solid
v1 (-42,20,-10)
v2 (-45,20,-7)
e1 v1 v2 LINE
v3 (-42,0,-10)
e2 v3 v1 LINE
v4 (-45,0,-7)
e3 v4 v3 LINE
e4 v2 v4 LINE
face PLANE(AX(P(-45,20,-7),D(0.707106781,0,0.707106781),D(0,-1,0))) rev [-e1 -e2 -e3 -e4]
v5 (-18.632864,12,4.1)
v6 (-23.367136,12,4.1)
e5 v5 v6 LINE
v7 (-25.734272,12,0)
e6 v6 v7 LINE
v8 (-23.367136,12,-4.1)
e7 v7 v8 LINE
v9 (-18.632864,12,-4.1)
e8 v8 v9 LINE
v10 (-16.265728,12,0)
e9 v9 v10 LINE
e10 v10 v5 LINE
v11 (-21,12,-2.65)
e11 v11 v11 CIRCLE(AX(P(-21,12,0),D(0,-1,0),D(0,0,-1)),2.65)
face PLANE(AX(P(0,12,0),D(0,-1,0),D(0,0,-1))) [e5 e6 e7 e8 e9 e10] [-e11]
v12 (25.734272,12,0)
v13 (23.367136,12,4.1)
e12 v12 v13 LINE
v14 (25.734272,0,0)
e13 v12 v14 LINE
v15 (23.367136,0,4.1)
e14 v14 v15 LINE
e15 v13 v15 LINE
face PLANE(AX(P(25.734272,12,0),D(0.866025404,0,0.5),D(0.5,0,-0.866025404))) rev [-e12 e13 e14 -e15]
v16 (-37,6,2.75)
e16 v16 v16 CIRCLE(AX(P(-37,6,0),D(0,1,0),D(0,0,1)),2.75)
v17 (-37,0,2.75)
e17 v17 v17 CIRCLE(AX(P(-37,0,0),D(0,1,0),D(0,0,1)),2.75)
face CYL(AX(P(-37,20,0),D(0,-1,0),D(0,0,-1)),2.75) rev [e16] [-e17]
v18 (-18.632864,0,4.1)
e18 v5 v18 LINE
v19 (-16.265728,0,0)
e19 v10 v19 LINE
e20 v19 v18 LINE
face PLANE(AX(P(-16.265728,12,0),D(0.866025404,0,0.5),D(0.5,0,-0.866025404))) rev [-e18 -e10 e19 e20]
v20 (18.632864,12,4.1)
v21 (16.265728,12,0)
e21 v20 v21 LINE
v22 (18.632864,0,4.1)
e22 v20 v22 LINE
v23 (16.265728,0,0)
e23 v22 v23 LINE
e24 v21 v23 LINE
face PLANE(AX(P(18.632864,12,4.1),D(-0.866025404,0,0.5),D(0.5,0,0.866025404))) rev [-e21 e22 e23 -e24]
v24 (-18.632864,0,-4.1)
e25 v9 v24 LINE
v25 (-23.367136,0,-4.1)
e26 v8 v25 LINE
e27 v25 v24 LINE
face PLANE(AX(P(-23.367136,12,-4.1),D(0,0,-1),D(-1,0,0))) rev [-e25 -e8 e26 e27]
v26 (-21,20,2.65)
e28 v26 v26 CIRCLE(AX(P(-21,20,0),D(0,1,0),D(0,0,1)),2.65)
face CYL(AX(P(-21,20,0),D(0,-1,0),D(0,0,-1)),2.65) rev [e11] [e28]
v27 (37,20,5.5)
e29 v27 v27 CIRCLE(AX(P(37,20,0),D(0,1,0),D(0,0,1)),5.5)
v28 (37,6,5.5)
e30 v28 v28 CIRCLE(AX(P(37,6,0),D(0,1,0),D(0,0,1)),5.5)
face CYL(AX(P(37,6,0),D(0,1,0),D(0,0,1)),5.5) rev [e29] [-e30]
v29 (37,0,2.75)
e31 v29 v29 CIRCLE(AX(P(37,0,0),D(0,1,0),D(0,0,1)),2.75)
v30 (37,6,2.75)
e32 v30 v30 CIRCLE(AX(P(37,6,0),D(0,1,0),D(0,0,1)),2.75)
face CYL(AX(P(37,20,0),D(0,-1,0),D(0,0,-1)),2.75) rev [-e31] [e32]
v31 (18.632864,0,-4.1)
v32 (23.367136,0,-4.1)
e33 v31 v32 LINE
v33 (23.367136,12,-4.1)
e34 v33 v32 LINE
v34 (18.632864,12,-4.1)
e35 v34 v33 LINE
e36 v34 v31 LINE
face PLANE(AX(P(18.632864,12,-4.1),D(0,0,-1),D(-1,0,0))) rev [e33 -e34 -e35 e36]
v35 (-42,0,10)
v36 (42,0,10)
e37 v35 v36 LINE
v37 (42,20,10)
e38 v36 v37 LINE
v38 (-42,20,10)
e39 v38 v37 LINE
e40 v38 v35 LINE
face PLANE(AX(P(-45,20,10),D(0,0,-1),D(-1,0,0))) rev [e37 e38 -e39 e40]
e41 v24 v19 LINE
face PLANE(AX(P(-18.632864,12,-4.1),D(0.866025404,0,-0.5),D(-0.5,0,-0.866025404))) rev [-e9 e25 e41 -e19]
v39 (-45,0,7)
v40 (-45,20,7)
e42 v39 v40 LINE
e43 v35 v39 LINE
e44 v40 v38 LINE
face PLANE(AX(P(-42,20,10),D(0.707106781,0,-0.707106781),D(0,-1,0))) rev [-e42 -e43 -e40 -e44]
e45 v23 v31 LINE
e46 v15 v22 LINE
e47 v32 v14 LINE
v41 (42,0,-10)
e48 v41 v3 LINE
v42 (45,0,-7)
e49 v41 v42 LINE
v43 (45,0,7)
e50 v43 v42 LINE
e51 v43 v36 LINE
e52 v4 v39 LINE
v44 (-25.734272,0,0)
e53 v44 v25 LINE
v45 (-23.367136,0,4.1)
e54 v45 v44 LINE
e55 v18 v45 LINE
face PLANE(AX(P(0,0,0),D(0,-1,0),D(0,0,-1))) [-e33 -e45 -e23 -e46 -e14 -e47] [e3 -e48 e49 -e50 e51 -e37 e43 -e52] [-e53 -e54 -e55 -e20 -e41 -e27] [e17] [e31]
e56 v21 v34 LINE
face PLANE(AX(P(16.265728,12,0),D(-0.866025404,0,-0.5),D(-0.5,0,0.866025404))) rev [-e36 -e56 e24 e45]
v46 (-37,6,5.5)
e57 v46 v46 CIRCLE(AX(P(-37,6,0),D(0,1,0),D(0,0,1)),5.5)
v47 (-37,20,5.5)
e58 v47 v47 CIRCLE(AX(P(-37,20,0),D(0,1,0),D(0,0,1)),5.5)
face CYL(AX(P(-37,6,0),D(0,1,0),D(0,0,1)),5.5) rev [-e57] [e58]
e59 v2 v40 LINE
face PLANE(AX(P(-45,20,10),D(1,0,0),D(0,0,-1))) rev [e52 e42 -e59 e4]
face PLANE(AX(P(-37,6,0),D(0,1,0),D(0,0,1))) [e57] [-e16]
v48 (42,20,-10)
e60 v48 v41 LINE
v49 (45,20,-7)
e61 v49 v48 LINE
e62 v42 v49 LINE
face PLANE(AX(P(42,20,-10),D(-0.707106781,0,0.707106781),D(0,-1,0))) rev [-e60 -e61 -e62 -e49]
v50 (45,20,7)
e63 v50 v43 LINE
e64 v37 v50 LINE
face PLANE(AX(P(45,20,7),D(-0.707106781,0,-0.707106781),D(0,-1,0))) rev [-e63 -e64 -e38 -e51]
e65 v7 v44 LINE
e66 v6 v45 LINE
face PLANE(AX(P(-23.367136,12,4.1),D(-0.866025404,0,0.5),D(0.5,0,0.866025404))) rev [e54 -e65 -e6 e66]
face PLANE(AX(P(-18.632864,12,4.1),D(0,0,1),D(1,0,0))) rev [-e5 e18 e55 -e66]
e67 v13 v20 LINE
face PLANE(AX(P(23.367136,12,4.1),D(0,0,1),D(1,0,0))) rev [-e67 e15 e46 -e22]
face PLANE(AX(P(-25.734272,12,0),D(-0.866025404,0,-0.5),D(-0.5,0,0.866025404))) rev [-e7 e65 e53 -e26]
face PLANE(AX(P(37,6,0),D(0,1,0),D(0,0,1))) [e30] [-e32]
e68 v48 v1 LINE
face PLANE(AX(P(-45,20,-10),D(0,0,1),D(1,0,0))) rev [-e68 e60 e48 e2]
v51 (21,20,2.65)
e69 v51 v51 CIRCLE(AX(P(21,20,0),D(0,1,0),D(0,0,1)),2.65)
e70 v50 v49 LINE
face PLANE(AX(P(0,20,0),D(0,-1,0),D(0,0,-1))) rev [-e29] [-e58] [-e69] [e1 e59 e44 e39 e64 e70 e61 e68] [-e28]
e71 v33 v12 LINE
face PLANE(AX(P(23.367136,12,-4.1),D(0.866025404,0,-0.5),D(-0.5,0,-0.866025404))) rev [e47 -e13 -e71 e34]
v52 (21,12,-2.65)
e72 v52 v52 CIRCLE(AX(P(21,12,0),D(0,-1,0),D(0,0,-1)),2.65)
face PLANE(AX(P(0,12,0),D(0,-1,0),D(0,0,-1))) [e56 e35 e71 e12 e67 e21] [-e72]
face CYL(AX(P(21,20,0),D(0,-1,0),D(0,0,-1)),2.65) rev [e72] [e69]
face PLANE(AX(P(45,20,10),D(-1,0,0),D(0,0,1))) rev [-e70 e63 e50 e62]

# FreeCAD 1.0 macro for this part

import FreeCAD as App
import Part
import Sketcher
Q = App.Units.Quantity


def edges_at(feature, points):
    """Names of the edges that pass closest to the given points."""
    edges = feature.Shape.Edges
    near = lambda p: min(range(len(edges)), key=lambda i: edges[i].distToShape(Part.Vertex(*p))[0])
    return sorted({f"Edge{near(p) + 1}" for p in points})


def add_polygon(sketch, points):
    """Adds a closed chain of lines whose ends are joined by coincident constraints."""
    first, n = sketch.GeometryCount, len(points)
    for a, b in zip(points, points[1:] + points[:1]):
        sketch.addGeometry(Part.LineSegment(App.Vector(*a, 0), App.Vector(*b, 0)), False)
    for i in range(n):
        sketch.addConstraint(Sketcher.Constraint("Coincident", first + i, 2, first + (i + 1) % n, 1))

doc = App.newDocument("Part")
body = doc.addObject("PartDesign::Body", "Body")

# Sketch on XZ plane
sketch1 = body.newObject("Sketcher::SketchObject", "Sketch")
sketch1.AttachmentSupport = (doc.getObject("XZ_Plane"), [""])
sketch1.MapMode = "FlatFace"
add_polygon(sketch1, [(-45, -10), (-45, 10), (45, 10), (45, -10)])  # lines 0-3
sketch1.addGeometry(Part.Circle(App.Vector(-37, 0, 0), App.Vector(0, 0, 1), 2.8), False)  # 4
sketch1.addGeometry(Part.Circle(App.Vector(-21, 0, 0), App.Vector(0, 0, 1), 2.6), False)  # 5
sketch1.addGeometry(Part.Circle(App.Vector(21, 0, 0), App.Vector(0, 0, 1), 2.6), False)  # 6
sketch1.addGeometry(Part.Circle(App.Vector(37, 0, 0), App.Vector(0, 0, 1), 2.8), False)  # 7
sketch1.addConstraint([
    Sketcher.Constraint("Vertical", 0),
    Sketcher.Constraint("Horizontal", 1),
    Sketcher.Constraint("Vertical", 2),
    Sketcher.Constraint("Horizontal", 3),
    Sketcher.Constraint("Equal", 5, 6),
    Sketcher.Constraint("Equal", 4, 7),
    Sketcher.Constraint("Symmetric", 5, 3, 6, 3, -1, 1),
    Sketcher.Constraint("Symmetric", 4, 3, 7, 3, -1, 1),
    Sketcher.Constraint("Symmetric", 0, 2, 2, 2, -1, 1),
    Sketcher.Constraint("PointOnObject", 4, 3, -1),
    Sketcher.Constraint("PointOnObject", 5, 3, -1),
    Sketcher.Constraint("Diameter", 4, 5.5),
    Sketcher.Constraint("Diameter", 5, 5.3),
    Sketcher.Constraint("DistanceX", 1, 1, 1, 2, 90.0),
    Sketcher.Constraint("DistanceY", 0, 1, 0, 2, 20.0),
    Sketcher.Constraint("DistanceX", 4, 3, -1, 1, 37.0),
    Sketcher.Constraint("DistanceX", 5, 3, -1, 1, 21.0),
])
pad1 = body.newObject("PartDesign::Pad", "Pad")
pad1.Profile = sketch1
pad1.Length = 20
pad1.Reversed = True

# Sketch on XZ plane
sketch2 = body.newObject("Sketcher::SketchObject", "Sketch001")
sketch2.AttachmentSupport = (doc.getObject("XZ_Plane"), [""])
sketch2.MapMode = "FlatFace"
add_polygon(sketch2, [(-16.3, 0), (-18.6, 4.1), (-23.4, 4.1), (-25.7, 0), (-23.4, -4.1), (-18.6, -4.1)])  # lines 0-5
add_polygon(sketch2, [(25.7, 0), (23.4, 4.1), (18.6, 4.1), (16.3, 0), (18.6, -4.1), (23.4, -4.1)])  # lines 6-11
sketch2.addConstraint([
    Sketcher.Constraint("Horizontal", 1),
    Sketcher.Constraint("Horizontal", 4),
    Sketcher.Constraint("Horizontal", 7),
    Sketcher.Constraint("Horizontal", 10),
    Sketcher.Constraint("Symmetric", 3, 2, 6, 2, -1, 1),
    Sketcher.Constraint("Symmetric", 5, 2, 8, 2, -1, 1),
    Sketcher.Constraint("Symmetric", 0, 2, 9, 2, -1, 1),
    Sketcher.Constraint("Symmetric", 2, 2, 11, 2, -1, 1),
    Sketcher.Constraint("Symmetric", 1, 2, 6, 2, -2),
    Sketcher.Constraint("PointOnObject", 2, 2, -1),
    Sketcher.Constraint("PointOnObject", 5, 2, -1),
    Sketcher.Constraint("Parallel", 0, 3),
    Sketcher.Constraint("Parallel", 2, 5),
    Sketcher.Constraint("Parallel", 5, 8),
    Sketcher.Constraint("Parallel", 8, 11),
    Sketcher.Constraint("Angle", 0, Q("120 deg")),
    Sketcher.Constraint("DistanceX", 0, 2, 6, 2, 42.0),
    Sketcher.Constraint("DistanceY", -1, 1, 0, 2, 4.1),
    Sketcher.Constraint("DistanceX", 1, 2, 1, 1, 4.734272),
])
pocket1 = body.newObject("PartDesign::Pocket", "Pocket")
pocket1.Profile = sketch2
pocket1.Length = 12

# Sketch on XZ plane
sketch3 = body.newObject("Sketcher::SketchObject", "Sketch002")
sketch3.AttachmentSupport = (doc.getObject("XZ_Plane"), [""])
sketch3.MapMode = "FlatFace"
sketch3.AttachmentOffset = App.Placement(App.Vector(0, 0, -20), App.Rotation())
sketch3.addGeometry([
    Part.Circle(App.Vector(-37, 0, 0), App.Vector(0, 0, 1), 6),
    Part.Circle(App.Vector(37, 0, 0), App.Vector(0, 0, 1), 6),
], False)
sketch3.addConstraint([
    Sketcher.Constraint("Equal", 0, 1),
    Sketcher.Constraint("Symmetric", 0, 3, 1, 3, -1, 1),
    Sketcher.Constraint("PointOnObject", 0, 3, -1),
    Sketcher.Constraint("Diameter", 0, 11.0),
    Sketcher.Constraint("DistanceX", 0, 3, -1, 1, 37.0),
])
pocket2 = body.newObject("PartDesign::Pocket", "Pocket001")
pocket2.Profile = sketch3
pocket2.Length = 14
pocket2.Reversed = True
doc.recompute()

chamfer = body.newObject("PartDesign::Chamfer", "Chamfer")
chamfer.Base = (pocket2, edges_at(pocket2, [
    (45, 10, 10),
    (-45, 10, 10),
    (-45, 10, -10),
    (45, 10, -10),
]))
chamfer.Size = 3

doc.recompute()
